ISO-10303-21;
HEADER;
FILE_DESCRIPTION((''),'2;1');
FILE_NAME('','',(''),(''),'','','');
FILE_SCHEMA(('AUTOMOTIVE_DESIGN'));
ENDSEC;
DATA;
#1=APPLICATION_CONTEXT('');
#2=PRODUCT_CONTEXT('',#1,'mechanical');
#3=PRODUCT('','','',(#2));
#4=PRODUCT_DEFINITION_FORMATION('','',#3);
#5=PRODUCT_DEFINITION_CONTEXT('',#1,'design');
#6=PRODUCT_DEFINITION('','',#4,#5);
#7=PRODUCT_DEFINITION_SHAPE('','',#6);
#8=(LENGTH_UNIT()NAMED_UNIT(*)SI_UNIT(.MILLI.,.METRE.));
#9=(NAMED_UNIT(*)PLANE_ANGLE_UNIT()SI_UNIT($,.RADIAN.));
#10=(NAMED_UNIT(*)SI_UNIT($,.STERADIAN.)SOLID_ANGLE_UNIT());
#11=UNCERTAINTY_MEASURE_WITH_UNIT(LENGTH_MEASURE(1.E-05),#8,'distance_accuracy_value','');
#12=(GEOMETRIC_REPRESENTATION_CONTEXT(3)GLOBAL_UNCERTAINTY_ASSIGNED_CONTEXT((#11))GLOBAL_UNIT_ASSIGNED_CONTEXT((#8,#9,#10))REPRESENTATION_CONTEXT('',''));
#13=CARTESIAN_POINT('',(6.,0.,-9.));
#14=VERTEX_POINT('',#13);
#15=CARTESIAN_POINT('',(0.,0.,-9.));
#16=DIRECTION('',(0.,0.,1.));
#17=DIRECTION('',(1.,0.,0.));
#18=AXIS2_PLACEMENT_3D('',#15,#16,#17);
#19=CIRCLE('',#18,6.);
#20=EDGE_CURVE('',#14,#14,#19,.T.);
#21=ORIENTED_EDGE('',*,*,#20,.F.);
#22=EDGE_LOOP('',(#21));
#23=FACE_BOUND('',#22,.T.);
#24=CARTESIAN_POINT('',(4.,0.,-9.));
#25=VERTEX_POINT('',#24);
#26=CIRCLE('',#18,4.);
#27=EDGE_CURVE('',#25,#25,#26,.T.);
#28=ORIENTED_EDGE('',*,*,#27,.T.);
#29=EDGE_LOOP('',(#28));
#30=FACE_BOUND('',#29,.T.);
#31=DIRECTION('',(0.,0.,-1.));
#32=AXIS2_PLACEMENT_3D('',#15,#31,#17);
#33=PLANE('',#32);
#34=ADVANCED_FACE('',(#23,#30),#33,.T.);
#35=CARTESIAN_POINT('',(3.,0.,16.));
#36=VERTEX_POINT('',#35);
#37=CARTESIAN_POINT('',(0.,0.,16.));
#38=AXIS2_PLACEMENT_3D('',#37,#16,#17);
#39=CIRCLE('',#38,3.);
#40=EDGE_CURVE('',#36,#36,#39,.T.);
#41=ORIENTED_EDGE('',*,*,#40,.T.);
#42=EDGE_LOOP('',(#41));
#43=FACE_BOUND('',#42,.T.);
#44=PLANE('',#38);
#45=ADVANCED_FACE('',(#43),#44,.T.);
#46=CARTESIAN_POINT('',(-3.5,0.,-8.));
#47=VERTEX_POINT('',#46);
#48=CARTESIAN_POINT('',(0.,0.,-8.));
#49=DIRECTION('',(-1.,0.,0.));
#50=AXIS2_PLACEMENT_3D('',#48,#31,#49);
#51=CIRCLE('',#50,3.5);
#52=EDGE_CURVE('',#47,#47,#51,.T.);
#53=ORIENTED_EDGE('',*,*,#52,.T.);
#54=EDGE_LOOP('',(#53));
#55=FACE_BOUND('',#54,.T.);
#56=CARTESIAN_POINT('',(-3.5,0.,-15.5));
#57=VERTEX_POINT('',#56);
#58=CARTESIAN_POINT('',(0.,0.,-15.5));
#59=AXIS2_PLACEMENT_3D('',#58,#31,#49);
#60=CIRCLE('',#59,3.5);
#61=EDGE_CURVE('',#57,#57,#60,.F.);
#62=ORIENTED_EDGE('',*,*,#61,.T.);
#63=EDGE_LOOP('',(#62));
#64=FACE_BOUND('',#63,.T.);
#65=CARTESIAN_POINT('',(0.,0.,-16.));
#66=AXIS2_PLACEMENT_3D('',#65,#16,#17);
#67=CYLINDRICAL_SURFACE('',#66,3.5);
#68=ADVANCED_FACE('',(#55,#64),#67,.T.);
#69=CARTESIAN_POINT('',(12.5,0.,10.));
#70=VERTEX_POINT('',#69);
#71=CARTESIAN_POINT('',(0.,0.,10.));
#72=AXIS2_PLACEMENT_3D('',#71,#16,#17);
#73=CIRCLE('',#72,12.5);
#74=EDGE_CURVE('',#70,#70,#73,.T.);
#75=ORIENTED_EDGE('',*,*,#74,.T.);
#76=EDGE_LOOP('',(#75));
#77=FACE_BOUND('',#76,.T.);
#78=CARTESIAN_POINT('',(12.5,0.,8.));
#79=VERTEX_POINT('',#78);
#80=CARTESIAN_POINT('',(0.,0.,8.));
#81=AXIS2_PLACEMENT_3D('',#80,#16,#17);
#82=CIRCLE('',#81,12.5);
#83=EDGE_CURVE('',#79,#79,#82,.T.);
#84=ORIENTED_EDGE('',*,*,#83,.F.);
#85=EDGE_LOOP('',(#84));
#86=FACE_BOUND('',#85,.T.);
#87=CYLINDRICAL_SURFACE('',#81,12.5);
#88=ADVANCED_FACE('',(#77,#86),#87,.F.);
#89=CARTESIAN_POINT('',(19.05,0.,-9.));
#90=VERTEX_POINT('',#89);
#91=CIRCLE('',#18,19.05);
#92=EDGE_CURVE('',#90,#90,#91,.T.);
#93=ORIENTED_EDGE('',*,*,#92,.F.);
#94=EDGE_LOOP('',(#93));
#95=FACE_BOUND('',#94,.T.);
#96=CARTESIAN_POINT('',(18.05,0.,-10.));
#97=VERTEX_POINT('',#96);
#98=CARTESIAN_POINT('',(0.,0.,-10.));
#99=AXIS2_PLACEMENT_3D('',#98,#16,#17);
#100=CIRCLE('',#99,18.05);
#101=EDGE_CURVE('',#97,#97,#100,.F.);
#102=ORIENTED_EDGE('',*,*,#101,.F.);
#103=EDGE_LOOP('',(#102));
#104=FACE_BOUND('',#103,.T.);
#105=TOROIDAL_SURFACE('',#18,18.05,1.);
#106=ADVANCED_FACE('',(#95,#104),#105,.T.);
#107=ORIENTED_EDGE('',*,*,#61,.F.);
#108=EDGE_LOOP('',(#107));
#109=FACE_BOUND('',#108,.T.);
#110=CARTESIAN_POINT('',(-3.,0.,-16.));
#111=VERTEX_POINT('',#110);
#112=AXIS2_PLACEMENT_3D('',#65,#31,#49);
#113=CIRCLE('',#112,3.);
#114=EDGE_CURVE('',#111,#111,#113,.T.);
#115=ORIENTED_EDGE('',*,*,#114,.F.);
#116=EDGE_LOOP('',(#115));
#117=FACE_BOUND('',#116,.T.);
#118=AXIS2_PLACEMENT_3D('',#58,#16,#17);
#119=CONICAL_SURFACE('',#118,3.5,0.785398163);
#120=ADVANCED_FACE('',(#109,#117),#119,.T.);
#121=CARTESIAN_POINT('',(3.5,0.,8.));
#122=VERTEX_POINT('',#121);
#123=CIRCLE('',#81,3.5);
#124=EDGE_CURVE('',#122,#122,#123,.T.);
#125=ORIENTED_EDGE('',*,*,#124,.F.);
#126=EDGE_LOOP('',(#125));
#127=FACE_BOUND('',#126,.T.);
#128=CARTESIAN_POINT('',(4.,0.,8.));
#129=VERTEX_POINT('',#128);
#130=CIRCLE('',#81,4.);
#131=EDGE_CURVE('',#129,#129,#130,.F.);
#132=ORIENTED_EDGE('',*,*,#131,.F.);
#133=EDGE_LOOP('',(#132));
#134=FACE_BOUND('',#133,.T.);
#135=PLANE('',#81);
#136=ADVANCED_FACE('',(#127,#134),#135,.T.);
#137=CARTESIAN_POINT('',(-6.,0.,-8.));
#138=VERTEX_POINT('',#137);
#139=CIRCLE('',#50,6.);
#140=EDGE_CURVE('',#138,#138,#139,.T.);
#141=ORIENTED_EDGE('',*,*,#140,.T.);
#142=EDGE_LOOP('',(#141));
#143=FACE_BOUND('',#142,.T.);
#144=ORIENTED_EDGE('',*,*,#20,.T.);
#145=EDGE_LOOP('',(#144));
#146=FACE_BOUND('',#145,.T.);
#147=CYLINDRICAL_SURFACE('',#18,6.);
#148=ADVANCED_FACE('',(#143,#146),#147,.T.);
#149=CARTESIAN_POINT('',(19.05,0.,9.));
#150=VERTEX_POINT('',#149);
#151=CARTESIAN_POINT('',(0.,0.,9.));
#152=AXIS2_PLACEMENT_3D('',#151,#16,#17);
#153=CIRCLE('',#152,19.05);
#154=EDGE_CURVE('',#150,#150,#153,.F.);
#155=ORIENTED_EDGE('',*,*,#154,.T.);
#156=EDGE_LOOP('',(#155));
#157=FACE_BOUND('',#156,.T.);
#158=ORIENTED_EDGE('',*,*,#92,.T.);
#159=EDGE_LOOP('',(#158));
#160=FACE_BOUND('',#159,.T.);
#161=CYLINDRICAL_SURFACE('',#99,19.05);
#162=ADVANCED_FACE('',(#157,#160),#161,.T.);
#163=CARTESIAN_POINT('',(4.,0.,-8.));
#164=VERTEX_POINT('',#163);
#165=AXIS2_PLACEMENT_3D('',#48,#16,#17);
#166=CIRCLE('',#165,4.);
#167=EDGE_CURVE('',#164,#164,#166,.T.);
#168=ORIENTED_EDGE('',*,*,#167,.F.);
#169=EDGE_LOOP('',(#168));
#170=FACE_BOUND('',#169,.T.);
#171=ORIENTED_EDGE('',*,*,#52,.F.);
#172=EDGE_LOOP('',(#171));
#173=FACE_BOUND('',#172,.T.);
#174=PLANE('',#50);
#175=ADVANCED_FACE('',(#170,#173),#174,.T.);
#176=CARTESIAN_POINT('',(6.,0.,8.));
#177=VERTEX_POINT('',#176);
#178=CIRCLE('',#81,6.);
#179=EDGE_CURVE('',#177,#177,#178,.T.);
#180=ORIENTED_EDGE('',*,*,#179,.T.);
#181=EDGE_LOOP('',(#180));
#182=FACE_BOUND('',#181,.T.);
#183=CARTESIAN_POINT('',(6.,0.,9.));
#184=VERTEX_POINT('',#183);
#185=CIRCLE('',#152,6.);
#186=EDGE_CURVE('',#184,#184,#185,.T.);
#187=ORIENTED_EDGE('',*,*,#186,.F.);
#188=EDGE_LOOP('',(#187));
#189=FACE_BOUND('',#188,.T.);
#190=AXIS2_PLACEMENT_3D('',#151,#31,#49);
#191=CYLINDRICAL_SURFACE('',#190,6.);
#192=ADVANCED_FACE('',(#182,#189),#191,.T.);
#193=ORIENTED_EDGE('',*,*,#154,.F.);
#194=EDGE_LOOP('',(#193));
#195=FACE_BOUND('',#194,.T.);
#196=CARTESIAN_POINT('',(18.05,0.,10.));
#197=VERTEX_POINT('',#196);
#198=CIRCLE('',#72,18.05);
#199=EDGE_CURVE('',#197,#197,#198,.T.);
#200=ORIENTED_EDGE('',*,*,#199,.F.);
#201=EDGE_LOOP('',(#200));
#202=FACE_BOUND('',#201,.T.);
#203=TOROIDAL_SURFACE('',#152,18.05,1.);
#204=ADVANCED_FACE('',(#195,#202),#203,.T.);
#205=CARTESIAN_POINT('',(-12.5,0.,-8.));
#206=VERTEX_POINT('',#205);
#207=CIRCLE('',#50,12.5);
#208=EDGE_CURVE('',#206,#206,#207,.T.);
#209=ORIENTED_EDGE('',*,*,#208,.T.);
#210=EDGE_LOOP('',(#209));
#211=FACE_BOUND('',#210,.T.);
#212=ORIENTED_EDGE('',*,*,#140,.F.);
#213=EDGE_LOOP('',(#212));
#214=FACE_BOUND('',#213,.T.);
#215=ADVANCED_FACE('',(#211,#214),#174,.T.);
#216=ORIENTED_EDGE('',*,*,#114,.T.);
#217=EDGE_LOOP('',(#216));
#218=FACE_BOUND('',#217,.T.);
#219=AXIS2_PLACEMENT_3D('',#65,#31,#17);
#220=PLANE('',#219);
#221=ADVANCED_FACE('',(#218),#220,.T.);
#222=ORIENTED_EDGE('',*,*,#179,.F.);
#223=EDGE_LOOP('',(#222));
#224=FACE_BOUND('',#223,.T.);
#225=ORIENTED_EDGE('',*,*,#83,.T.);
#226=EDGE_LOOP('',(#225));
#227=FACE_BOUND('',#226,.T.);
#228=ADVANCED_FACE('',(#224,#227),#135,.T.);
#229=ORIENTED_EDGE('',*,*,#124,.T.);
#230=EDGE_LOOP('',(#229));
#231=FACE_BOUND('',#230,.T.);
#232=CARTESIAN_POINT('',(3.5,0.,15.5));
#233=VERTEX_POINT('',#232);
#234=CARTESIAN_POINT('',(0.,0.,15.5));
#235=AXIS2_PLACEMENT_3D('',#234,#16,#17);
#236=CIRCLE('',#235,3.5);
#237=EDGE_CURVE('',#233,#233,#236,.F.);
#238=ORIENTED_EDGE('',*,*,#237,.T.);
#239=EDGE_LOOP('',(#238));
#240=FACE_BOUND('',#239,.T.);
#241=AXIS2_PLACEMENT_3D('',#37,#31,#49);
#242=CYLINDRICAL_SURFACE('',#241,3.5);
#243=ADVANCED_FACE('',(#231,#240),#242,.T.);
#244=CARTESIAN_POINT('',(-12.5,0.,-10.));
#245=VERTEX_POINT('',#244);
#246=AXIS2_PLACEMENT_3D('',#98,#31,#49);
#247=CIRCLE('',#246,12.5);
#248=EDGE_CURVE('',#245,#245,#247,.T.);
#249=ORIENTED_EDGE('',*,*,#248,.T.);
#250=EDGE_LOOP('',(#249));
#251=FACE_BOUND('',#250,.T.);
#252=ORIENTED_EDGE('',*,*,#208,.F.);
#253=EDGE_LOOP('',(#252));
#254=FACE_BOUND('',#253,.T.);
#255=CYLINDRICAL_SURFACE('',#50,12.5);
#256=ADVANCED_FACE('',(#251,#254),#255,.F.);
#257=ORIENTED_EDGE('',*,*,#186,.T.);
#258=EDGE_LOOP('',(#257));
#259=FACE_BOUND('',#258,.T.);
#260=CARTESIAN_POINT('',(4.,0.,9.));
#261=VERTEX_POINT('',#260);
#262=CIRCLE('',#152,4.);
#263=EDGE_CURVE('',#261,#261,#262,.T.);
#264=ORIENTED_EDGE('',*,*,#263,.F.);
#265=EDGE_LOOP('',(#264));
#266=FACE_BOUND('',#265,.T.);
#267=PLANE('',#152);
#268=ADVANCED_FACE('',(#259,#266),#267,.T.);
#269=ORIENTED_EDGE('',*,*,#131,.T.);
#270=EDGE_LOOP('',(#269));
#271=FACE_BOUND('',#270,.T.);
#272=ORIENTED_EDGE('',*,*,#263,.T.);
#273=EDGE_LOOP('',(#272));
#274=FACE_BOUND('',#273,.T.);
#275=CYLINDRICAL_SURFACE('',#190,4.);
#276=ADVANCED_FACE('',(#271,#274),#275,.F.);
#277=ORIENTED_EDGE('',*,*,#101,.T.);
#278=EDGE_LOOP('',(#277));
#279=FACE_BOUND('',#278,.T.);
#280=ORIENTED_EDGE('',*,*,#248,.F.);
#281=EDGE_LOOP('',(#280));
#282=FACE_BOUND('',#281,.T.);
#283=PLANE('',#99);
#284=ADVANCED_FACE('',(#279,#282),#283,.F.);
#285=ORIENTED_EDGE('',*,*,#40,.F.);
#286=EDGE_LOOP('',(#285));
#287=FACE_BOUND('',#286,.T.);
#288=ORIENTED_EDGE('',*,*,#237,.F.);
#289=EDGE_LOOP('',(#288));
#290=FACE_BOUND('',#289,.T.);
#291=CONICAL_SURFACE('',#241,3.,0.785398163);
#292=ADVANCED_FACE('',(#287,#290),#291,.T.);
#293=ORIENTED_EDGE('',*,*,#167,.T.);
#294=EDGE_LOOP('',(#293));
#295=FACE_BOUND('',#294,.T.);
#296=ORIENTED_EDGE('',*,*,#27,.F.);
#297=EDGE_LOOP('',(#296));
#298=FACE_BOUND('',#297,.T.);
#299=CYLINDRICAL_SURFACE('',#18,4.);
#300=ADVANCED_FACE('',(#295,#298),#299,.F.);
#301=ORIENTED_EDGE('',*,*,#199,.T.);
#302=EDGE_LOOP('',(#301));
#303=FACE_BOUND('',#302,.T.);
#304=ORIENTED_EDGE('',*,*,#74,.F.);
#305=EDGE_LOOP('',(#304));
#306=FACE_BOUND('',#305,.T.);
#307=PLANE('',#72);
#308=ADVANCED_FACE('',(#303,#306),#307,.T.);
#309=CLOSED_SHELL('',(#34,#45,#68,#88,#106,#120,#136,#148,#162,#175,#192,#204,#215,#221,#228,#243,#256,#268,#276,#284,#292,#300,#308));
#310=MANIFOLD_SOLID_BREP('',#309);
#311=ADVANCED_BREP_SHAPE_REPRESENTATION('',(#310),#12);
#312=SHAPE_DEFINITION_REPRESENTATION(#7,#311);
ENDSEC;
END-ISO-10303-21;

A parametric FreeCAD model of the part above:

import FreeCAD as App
import Part
import Sketcher
Q = App.Units.Quantity


def edges_at(feature, points):
    """Names of the edges that pass closest to the given points."""
    edges = feature.Shape.Edges
    near = lambda p: min(range(len(edges)), key=lambda i: edges[i].distToShape(Part.Vertex(*p))[0])
    return sorted({f"Edge{near(p) + 1}" for p in points})

doc = App.newDocument("Part")
body = doc.addObject("PartDesign::Body", "Body")

sketch1 = body.newObject("Sketcher::SketchObject", "Sketch")
sketch1.AttachmentSupport = (doc.getObject("XY_Plane"), [""])
sketch1.MapMode = "FlatFace"
sketch1.addGeometry(Part.Circle(App.Vector(0, 0, 0), App.Vector(0, 0, 1), 19), False)
sketch1.addConstraint([
    Sketcher.Constraint("Coincident", 0, 3, -1, 1),
    Sketcher.Constraint("Diameter", 0, Q("38.1 mm")),
])
pad1 = body.newObject("PartDesign::Pad", "Pad")
pad1.Profile = sketch1
pad1.Type = "TwoLengths"
pad1.Length = 10
pad1.Length2 = 10
doc.recompute()

fillet = body.newObject("PartDesign::Fillet", "Fillet")
fillet.Base = (pad1, edges_at(pad1, [(-19.05, 0, -10), (-19.05, 0, 10)]))
fillet.Radius = 1

sketch2 = body.newObject("Sketcher::SketchObject", "Sketch001")
sketch2.AttachmentSupport = (doc.getObject("XY_Plane"), [""])
sketch2.MapMode = "FlatFace"
sketch2.AttachmentOffset = App.Placement(App.Vector(0, 0, 10), App.Rotation())
sketch2.addGeometry(Part.Circle(App.Vector(0, 0, 0), App.Vector(0, 0, 1), 12), False)
sketch2.addConstraint([
    Sketcher.Constraint("Coincident", 0, 3, -1, 1),
    Sketcher.Constraint("Diameter", 0, Q("25 mm")),
])
pocket1 = body.newObject("PartDesign::Pocket", "Pocket")
pocket1.Profile = sketch2
pocket1.Length = 2

sketch3 = body.newObject("Sketcher::SketchObject", "Sketch002")
sketch3.AttachmentSupport = (doc.getObject("XY_Plane"), [""])
sketch3.MapMode = "FlatFace"
sketch3.AttachmentOffset = App.Placement(App.Vector(0, 0, -8), App.Rotation())
sketch3.addGeometry(Part.Circle(App.Vector(0, 0, 0), App.Vector(0, 0, 1), 12), False)
sketch3.addConstraint([
    Sketcher.Constraint("Coincident", 0, 3, -1, 1),
    Sketcher.Constraint("Diameter", 0, Q("25 mm")),
])
pocket2 = body.newObject("PartDesign::Pocket", "Pocket001")
pocket2.Profile = sketch3
pocket2.Length = 2

sketch4 = body.newObject("Sketcher::SketchObject", "Sketch003")
sketch4.AttachmentSupport = (doc.getObject("XY_Plane"), [""])
sketch4.MapMode = "FlatFace"
sketch4.AttachmentOffset = App.Placement(App.Vector(0, 0, 8), App.Rotation())
sketch4.addGeometry([
    Part.Circle(App.Vector(0, 0, 0), App.Vector(0, 0, 1), 6),
    Part.Circle(App.Vector(0, 0, 0), App.Vector(0, 0, 1), 4),
], False)
sketch4.addConstraint([
    Sketcher.Constraint("Coincident", 0, 3, -1, 1),
    Sketcher.Constraint("Coincident", 1, 3, -1, 1),
    Sketcher.Constraint("Diameter", 0, Q("12 mm")),
    Sketcher.Constraint("Diameter", 1, Q("8 mm")),
])
pad2 = body.newObject("PartDesign::Pad", "Pad001")
pad2.Profile = sketch4
pad2.Length = 1
doc.recompute()

mirrored = body.newObject("PartDesign::Mirrored", "Mirrored")
mirrored.Originals = [pad2]
mirrored.MirrorPlane = (doc.getObject("XY_Plane"), [""])
body.Tip = mirrored

sketch5 = body.newObject("Sketcher::SketchObject", "Sketch004")
sketch5.AttachmentSupport = (doc.getObject("XY_Plane"), [""])
sketch5.MapMode = "FlatFace"
sketch5.AttachmentOffset = App.Placement(App.Vector(0, 0, 8), App.Rotation())
sketch5.addGeometry(Part.Circle(App.Vector(0, 0, 0), App.Vector(0, 0, 1), 3.5), False)
sketch5.addConstraint([
    Sketcher.Constraint("Coincident", 0, 3, -1, 1),
    Sketcher.Constraint("Diameter", 0, Q("7 mm")),
])
pad3 = body.newObject("PartDesign::Pad", "Pad002")
pad3.Profile = sketch5
pad3.Length = 8
doc.recompute()

mirrored2 = body.newObject("PartDesign::Mirrored", "Mirrored001")
mirrored2.Originals = [pad3]
mirrored2.MirrorPlane = (doc.getObject("XY_Plane"), [""])
body.Tip = mirrored2
doc.recompute()

chamfer = body.newObject("PartDesign::Chamfer", "Chamfer")
chamfer.Base = (mirrored2, edges_at(mirrored2, [(-3.5, 0, 16), (-3.5, 0, -16)]))
chamfer.Size = 0.5

doc.recompute()
